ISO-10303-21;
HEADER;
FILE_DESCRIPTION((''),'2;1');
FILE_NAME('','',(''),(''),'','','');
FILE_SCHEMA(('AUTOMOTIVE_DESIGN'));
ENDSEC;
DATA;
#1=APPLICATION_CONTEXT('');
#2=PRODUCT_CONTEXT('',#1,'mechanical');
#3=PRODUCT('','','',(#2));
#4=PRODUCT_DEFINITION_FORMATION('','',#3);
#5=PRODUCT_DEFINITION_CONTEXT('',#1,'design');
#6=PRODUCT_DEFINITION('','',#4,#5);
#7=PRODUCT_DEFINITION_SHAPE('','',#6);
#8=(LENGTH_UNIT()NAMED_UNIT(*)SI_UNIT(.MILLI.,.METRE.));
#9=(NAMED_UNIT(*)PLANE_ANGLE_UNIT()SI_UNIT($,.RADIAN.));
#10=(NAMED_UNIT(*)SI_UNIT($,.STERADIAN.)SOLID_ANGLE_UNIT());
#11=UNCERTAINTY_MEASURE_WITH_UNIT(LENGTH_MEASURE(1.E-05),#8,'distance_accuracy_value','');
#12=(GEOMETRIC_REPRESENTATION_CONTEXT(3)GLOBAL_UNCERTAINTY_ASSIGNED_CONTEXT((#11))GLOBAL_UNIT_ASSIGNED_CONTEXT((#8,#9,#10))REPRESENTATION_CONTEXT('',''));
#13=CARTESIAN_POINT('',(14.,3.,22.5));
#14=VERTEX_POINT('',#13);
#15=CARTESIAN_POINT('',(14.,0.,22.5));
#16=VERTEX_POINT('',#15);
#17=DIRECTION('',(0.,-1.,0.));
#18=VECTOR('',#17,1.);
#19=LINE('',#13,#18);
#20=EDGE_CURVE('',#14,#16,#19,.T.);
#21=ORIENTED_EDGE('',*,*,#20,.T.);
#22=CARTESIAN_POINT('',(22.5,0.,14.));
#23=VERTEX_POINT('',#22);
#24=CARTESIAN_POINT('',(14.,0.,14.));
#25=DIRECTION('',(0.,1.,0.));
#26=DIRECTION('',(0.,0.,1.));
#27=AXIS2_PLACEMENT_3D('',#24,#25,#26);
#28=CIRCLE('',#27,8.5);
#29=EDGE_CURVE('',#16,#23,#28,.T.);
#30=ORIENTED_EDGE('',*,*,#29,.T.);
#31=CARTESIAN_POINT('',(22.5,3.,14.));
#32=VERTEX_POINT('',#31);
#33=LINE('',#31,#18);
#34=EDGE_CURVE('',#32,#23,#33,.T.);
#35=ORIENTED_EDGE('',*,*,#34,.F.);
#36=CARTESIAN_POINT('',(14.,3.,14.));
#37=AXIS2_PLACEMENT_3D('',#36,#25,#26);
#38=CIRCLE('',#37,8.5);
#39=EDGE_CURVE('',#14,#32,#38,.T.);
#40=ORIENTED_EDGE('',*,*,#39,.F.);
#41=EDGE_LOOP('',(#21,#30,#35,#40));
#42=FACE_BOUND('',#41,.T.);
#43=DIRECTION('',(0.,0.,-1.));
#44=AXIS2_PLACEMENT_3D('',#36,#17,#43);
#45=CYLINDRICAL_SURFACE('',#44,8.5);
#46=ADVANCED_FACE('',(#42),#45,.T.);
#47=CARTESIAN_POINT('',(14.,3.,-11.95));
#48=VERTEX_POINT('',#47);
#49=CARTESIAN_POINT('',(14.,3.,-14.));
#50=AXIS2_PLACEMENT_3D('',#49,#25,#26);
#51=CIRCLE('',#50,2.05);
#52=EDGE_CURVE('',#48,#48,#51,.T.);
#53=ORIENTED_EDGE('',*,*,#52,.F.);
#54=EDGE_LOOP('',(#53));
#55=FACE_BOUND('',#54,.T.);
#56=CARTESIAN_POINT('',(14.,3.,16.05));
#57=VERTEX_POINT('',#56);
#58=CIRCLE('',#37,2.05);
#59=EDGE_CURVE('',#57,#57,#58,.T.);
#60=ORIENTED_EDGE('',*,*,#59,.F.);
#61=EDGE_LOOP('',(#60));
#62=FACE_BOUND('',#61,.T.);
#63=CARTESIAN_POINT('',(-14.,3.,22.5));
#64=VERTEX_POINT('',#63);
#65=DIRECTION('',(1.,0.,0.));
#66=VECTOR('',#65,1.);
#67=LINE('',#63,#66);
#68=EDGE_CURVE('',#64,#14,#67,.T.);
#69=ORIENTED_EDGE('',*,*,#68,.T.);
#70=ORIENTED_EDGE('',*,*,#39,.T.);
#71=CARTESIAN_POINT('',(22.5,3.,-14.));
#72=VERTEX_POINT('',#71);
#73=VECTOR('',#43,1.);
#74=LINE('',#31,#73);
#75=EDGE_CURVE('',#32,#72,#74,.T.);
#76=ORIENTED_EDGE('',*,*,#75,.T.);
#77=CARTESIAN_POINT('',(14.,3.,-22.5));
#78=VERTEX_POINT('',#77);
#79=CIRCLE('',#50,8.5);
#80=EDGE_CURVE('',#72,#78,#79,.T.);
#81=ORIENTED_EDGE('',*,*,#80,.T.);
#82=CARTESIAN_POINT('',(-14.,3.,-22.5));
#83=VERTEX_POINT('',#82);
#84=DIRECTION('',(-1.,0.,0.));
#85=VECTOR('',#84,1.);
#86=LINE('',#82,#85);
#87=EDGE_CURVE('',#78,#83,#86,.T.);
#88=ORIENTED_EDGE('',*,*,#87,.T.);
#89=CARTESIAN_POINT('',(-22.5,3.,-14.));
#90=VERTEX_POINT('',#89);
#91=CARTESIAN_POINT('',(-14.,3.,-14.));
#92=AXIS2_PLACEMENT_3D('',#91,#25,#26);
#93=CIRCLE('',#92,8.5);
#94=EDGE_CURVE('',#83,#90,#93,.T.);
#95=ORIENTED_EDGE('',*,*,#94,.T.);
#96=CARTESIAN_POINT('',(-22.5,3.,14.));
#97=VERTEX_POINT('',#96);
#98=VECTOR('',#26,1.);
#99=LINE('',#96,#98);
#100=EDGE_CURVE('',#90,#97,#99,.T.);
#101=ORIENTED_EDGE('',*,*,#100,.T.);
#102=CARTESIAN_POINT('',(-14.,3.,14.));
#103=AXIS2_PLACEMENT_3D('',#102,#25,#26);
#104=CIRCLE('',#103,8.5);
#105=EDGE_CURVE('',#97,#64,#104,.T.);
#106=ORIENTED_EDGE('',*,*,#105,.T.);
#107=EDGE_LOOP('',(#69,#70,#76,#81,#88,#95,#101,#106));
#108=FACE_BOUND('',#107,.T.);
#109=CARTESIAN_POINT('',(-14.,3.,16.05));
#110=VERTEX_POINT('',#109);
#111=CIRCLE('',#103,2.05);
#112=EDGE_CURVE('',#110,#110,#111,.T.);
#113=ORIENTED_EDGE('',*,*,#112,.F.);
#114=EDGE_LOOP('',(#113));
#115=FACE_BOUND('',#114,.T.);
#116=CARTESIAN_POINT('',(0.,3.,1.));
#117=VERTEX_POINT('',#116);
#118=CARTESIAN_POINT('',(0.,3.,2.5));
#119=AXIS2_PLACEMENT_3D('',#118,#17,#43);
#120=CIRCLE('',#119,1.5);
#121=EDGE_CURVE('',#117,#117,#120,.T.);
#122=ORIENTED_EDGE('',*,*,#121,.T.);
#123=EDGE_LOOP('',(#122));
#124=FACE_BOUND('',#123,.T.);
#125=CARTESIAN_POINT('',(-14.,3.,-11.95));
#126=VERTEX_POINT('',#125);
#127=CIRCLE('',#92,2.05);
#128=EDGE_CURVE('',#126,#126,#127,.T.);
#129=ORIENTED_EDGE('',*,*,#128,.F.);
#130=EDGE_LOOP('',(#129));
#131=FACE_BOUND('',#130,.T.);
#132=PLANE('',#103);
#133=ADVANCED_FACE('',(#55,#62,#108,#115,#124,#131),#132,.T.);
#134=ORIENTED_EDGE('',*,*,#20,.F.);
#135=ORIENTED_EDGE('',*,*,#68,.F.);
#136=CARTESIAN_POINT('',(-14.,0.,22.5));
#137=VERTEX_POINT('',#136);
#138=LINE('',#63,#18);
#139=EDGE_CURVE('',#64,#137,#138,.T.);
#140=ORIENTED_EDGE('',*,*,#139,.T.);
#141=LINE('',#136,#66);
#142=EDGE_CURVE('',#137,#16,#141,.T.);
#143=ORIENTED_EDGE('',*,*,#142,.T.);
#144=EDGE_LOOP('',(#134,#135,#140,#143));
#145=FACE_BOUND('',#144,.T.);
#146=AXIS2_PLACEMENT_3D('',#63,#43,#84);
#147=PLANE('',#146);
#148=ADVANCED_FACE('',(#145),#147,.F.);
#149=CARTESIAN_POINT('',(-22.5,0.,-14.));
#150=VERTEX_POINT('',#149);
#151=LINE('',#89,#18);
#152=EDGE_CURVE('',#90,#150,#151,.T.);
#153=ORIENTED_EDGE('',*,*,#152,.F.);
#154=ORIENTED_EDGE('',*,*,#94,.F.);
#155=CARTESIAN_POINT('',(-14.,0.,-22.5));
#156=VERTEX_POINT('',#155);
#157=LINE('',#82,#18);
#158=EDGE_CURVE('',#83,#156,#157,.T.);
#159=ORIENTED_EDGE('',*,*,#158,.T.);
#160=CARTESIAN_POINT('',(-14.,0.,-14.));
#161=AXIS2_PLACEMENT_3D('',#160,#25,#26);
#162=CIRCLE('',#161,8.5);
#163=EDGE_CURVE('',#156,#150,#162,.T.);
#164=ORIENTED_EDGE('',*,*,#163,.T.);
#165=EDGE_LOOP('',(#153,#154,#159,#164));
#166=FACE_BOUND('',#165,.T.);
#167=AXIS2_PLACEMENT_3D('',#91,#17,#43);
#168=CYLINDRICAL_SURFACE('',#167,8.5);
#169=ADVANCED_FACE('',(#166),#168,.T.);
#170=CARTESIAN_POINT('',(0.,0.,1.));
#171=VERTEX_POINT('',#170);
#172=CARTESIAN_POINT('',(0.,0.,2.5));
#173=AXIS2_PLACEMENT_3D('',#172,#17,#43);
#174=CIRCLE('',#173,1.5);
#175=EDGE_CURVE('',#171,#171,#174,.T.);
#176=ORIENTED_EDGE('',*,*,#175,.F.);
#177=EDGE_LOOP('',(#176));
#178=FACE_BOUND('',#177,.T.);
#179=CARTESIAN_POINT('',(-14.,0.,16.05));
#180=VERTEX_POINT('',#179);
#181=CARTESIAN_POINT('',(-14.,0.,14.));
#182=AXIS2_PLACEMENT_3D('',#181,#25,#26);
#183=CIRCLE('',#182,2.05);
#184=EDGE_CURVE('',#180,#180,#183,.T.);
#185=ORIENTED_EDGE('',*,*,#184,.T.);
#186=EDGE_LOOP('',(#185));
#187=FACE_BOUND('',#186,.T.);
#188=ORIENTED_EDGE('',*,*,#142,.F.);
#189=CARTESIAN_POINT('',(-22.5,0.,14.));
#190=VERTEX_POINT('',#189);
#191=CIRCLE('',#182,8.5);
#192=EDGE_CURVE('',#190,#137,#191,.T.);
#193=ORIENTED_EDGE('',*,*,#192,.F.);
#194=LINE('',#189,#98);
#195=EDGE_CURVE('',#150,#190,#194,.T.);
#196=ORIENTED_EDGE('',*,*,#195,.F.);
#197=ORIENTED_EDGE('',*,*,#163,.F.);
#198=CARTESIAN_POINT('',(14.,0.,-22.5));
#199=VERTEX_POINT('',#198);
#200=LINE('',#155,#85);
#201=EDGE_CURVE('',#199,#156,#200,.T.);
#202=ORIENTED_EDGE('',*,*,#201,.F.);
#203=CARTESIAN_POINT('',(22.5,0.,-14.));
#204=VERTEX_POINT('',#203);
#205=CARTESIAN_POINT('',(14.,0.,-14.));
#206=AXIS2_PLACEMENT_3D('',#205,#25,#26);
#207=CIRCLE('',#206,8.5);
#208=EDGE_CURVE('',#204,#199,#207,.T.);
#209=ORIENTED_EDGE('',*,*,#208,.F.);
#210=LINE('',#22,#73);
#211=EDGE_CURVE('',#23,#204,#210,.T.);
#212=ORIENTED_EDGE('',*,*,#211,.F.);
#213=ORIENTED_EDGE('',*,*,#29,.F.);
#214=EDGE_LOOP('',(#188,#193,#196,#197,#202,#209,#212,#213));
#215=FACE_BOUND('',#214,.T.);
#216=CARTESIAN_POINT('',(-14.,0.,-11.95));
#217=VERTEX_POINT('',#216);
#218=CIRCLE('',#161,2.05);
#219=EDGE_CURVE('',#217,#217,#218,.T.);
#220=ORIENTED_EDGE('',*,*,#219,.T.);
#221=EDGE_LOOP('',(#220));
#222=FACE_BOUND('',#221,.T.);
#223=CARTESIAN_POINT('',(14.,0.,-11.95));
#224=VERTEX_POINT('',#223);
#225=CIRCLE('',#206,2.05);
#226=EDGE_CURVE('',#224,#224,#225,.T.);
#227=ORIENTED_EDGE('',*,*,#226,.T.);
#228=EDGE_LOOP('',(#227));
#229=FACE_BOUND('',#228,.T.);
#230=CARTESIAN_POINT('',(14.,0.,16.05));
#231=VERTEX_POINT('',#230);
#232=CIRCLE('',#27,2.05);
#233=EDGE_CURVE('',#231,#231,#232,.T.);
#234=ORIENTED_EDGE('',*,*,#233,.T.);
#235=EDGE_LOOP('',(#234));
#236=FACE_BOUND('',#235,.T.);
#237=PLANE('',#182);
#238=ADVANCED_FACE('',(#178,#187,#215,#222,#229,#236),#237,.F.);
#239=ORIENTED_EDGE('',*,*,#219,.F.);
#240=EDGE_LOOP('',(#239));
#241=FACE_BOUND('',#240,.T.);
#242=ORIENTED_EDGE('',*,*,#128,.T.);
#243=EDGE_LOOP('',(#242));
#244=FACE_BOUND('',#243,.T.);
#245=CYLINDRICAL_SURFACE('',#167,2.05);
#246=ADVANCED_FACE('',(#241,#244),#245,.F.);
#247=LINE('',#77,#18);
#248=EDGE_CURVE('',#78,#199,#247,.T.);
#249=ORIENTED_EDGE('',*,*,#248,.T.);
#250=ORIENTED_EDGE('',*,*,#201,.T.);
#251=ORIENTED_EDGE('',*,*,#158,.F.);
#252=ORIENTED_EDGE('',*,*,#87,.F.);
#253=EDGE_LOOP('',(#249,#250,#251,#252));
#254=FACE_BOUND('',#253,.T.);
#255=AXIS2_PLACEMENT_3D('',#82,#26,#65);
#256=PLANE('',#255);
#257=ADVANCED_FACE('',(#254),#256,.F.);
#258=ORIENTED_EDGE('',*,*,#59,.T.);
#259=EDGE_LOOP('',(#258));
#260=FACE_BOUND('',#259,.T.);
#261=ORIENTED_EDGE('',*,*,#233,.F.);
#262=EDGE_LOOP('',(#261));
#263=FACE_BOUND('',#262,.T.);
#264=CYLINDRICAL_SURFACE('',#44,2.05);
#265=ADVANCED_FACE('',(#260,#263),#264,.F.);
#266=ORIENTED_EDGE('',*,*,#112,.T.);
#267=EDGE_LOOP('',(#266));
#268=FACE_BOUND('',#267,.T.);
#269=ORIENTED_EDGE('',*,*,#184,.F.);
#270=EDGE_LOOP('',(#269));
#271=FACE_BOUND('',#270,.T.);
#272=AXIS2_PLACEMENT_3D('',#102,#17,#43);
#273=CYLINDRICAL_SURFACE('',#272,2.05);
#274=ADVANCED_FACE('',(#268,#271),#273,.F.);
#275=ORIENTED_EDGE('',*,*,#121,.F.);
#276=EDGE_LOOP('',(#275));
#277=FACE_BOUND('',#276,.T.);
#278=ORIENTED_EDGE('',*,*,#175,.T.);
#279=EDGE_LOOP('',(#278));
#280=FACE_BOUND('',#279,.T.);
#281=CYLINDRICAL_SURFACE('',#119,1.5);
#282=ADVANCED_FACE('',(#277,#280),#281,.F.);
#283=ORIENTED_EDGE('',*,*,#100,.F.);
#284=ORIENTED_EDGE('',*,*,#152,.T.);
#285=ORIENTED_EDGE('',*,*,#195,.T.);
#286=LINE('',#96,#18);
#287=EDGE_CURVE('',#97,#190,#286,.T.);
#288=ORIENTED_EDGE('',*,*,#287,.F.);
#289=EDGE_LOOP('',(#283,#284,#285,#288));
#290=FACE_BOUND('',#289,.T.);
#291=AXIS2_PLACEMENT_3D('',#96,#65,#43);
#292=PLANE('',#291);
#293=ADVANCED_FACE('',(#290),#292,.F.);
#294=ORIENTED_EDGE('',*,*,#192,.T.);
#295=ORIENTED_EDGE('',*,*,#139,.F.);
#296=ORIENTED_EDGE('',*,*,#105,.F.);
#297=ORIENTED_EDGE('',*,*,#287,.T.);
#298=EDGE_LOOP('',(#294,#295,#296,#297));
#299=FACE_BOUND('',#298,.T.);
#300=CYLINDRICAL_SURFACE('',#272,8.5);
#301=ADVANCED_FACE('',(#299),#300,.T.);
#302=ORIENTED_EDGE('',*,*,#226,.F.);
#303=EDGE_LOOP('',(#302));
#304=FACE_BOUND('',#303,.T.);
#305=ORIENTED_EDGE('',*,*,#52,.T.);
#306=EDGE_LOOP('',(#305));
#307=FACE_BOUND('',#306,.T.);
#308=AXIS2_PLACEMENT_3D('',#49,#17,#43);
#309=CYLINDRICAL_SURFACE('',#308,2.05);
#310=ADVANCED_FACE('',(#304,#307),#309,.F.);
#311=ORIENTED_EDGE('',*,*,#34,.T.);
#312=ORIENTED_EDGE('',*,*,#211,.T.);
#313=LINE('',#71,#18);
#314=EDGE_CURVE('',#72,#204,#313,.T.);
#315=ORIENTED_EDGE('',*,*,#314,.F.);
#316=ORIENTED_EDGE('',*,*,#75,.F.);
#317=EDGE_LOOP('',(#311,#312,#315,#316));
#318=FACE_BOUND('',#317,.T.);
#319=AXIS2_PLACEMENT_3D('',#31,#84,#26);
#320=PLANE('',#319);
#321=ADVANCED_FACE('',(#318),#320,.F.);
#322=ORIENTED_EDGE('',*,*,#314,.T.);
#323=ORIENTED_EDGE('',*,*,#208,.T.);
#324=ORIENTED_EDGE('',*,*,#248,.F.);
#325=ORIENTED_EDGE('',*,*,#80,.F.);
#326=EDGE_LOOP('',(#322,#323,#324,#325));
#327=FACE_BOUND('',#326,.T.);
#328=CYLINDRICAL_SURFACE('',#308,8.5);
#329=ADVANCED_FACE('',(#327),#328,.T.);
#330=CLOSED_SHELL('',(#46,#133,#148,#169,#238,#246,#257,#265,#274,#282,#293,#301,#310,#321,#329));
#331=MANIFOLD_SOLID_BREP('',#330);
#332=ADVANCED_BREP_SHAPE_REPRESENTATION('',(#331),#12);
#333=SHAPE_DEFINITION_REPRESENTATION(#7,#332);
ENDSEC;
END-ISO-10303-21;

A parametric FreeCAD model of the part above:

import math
import FreeCAD as App
import Part
import Sketcher
from FreeCAD import Vector
Q = App.Units.Quantity

doc = App.newDocument("Part")
params = doc.addObject("Spreadsheet::Sheet", "Params")
for row, (alias, value) in enumerate([
    ("sketch1_diameter", "4.1 mm"),
    ("sketch1_radius", "8.5 mm"),
    ("sketch1_width", "28 mm"),
    ("pad1_length", "3 mm"),
    ("sketch2_diameter", "3 mm"),
    ("pocket1_length", "3 mm"),
], start=1):
    params.set(f"A{row}", alias)
    params.set(f"B{row}", "=" + value)
    params.setAlias(f"B{row}", alias)

body = doc.addObject("PartDesign::Body", "Body")

# Sketch on XZ plane
sketch1 = body.newObject("Sketcher::SketchObject", "Sketch")
sketch1.AttachmentSupport = (doc.getObject("XZ_Plane"), [""])
sketch1.MapMode = "FlatFace"
sketch1.addGeometry(Part.LineSegment(Vector(-14, 22.5, 0), Vector(14, 22.5, 0)), False)
sketch1.addGeometry(Part.ArcOfCircle(Part.Circle(Vector(14, 14, 0), Vector(0, 0, 1), 8.5), math.radians(0), math.radians(90)), False)
sketch1.addGeometry(Part.LineSegment(Vector(22.5, 14, 0), Vector(22.5, -14, 0)), False)
sketch1.addGeometry(Part.ArcOfCircle(Part.Circle(Vector(14, -14, 0), Vector(0, 0, 1), 8.5), math.radians(-90), math.radians(0)), False)
sketch1.addGeometry(Part.LineSegment(Vector(14, -22.5, 0), Vector(-14, -22.5, 0)), False)
sketch1.addGeometry(Part.ArcOfCircle(Part.Circle(Vector(-14, -14, 0), Vector(0, 0, 1), 8.5), math.radians(180), math.radians(270)), False)
sketch1.addGeometry(Part.LineSegment(Vector(-22.5, -14, 0), Vector(-22.5, 14, 0)), False)
sketch1.addGeometry(Part.ArcOfCircle(Part.Circle(Vector(-14, 14, 0), Vector(0, 0, 1), 8.5), math.radians(90), math.radians(180)), False)
sketch1.addGeometry(Part.Circle(Vector(-14, 14, 0), Vector(0, 0, 1), 2), False)
sketch1.addGeometry(Part.Circle(Vector(14, 14, 0), Vector(0, 0, 1), 2), False)
sketch1.addGeometry(Part.Circle(Vector(-14, -14, 0), Vector(0, 0, 1), 2), False)
sketch1.addGeometry(Part.Circle(Vector(14, -14, 0), Vector(0, 0, 1), 2), False)
sketch1.addConstraint(Sketcher.Constraint("Tangent", 0, 2, 1, 2))
sketch1.addConstraint(Sketcher.Constraint("Tangent", 1, 1, 2, 1))
sketch1.addConstraint(Sketcher.Constraint("Tangent", 2, 2, 3, 2))
sketch1.addConstraint(Sketcher.Constraint("Tangent", 3, 1, 4, 1))
sketch1.addConstraint(Sketcher.Constraint("Tangent", 4, 2, 5, 2))
sketch1.addConstraint(Sketcher.Constraint("Tangent", 5, 1, 6, 1))
sketch1.addConstraint(Sketcher.Constraint("Tangent", 6, 2, 7, 2))
sketch1.addConstraint(Sketcher.Constraint("Tangent", 7, 1, 0, 1))
sketch1.addConstraint(Sketcher.Constraint("Horizontal", 0))
sketch1.addConstraint(Sketcher.Constraint("Vertical", 2))
sketch1.addConstraint(Sketcher.Constraint("Horizontal", 4))
sketch1.addConstraint(Sketcher.Constraint("Vertical", 6))
sketch1.addConstraint(Sketcher.Constraint("Coincident", 8, 3, 7, 3))
sketch1.addConstraint(Sketcher.Constraint("Coincident", 9, 3, 1, 3))
sketch1.addConstraint(Sketcher.Constraint("Coincident", 10, 3, 5, 3))
sketch1.addConstraint(Sketcher.Constraint("Coincident", 11, 3, 3, 3))
sketch1.addConstraint(Sketcher.Constraint("Equal", 1, 3))
sketch1.addConstraint(Sketcher.Constraint("Equal", 3, 5))
sketch1.addConstraint(Sketcher.Constraint("Equal", 5, 7))
sketch1.addConstraint(Sketcher.Constraint("Equal", 8, 9))
sketch1.addConstraint(Sketcher.Constraint("Equal", 9, 10))
sketch1.addConstraint(Sketcher.Constraint("Equal", 10, 11))
sketch1.addConstraint(Sketcher.Constraint("Symmetric", 1, 3, 5, 3, -1, 1))
sketch1.addConstraint(Sketcher.Constraint("Equal", 4, 2))
sketch1.addConstraint(Sketcher.Constraint("Diameter", 8, Q("4.1 mm")))
sketch1.addConstraint(Sketcher.Constraint("Radius", 1, Q("8.5 mm")))
sketch1.addConstraint(Sketcher.Constraint("DistanceX", 0, 1, 0, 2, Q("28 mm")))
sketch1.setExpression("Constraints[24]", "Params.sketch1_diameter")
sketch1.setExpression("Constraints[25]", "Params.sketch1_radius")
sketch1.setExpression("Constraints[26]", "Params.sketch1_width")
pad1 = body.newObject("PartDesign::Pad", "Pad")
pad1.Profile = sketch1
pad1.setExpression("Length", "Params.pad1_length")
pad1.Reversed = True

# Sketch on XZ plane
sketch2 = body.newObject("Sketcher::SketchObject", "Sketch001")
sketch2.AttachmentSupport = (doc.getObject("XZ_Plane"), [""])
sketch2.MapMode = "FlatFace"
sketch2.addGeometry(Part.Circle(Vector(0, 2.5, 0), Vector(0, 0, 1), 1.5), False)
sketch2.addConstraint(Sketcher.Constraint("PointOnObject", 0, 3, -2))
sketch2.addConstraint(Sketcher.Constraint("Diameter", 0, Q("3 mm")))
sketch2.addConstraint(Sketcher.Constraint("DistanceY", -1, 1, 0, 3, Q("2.5 mm")))
sketch2.setExpression("Constraints[1]", "Params.sketch2_diameter")
pocket1 = body.newObject("PartDesign::Pocket", "Pocket")
pocket1.Profile = sketch2
pocket1.setExpression("Length", "Params.pocket1_length")

doc.recompute()
